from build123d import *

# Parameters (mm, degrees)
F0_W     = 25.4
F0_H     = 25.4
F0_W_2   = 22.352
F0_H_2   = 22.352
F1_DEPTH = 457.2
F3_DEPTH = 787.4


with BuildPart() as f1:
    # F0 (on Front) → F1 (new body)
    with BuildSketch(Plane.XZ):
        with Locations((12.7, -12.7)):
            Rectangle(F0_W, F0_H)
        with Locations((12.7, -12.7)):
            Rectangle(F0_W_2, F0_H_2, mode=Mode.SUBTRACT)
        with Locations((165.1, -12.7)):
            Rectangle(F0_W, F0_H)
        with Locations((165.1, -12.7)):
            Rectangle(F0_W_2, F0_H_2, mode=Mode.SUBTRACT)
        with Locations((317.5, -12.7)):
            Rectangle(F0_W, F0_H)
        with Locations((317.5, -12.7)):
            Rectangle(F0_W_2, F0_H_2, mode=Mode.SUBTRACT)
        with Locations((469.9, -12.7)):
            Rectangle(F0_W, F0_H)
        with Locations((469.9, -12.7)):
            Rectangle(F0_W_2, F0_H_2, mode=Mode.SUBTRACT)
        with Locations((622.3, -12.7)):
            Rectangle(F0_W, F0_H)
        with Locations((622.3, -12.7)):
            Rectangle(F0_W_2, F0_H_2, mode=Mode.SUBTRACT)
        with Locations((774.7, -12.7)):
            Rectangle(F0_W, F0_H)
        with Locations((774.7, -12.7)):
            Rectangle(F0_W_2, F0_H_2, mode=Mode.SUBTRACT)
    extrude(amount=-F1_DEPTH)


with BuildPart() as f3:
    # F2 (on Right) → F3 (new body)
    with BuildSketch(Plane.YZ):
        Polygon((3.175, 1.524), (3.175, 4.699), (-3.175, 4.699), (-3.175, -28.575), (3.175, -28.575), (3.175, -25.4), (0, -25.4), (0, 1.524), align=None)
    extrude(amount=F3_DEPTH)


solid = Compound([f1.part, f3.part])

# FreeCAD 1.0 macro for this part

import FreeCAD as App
import Part
import Sketcher
Q = App.Units.Quantity

doc = App.newDocument("Part")
params = doc.addObject("Spreadsheet::Sheet", "Params")
for row, (alias, value) in enumerate([
    ("sketch1_width", "1 in"),
    ("sketch1_width2", "0.88 in"),
    ("pad1_length", "18 in"),
    ("sketch2_width", "0.25 in"),
    ("sketch2_height", "1.31 in"),
    ("sketch2_height2", "1.06 in"),
    ("pad2_length", "31 in"),
], start=1):
    params.set(f"A{row}", alias)
    params.set(f"B{row}", "=" + value)
    params.setAlias(f"B{row}", alias)

body = doc.addObject("PartDesign::Body", "Body")
body.AllowCompound = True

# Sketch on XZ plane
sketch1 = body.newObject("Sketcher::SketchObject", "Sketch")
sketch1.AttachmentSupport = (doc.getObject("XZ_Plane"), [""])
sketch1.MapMode = "FlatFace"
sketch1.addGeometry([
    Part.LineSegment(App.Vector(0, 0, 0), App.Vector(0, -25, 0)),  # 0
    Part.LineSegment(App.Vector(0, -25, 0), App.Vector(25, -25, 0)),  # 1
    Part.LineSegment(App.Vector(25, -25, 0), App.Vector(25, 0, 0)),  # 2
    Part.LineSegment(App.Vector(25, 0, 0), App.Vector(0, 0, 0)),  # 3
    Part.LineSegment(App.Vector(24, -24, 0), App.Vector(2, -24, 0)),  # 4
    Part.LineSegment(App.Vector(2, -24, 0), App.Vector(2, -2, 0)),  # 5
    Part.LineSegment(App.Vector(2, -2, 0), App.Vector(24, -2, 0)),  # 6
    Part.LineSegment(App.Vector(24, -2, 0), App.Vector(24, -24, 0)),  # 7
    Part.LineSegment(App.Vector(152, 0, 0), App.Vector(152, -25, 0)),  # 8
    Part.LineSegment(App.Vector(152, -25, 0), App.Vector(178, -25, 0)),  # 9
    Part.LineSegment(App.Vector(178, -25, 0), App.Vector(178, 0, 0)),  # 10
    Part.LineSegment(App.Vector(178, 0, 0), App.Vector(152, 0, 0)),  # 11
    Part.LineSegment(App.Vector(176, -24, 0), App.Vector(154, -24, 0)),  # 12
    Part.LineSegment(App.Vector(154, -24, 0), App.Vector(154, -2, 0)),  # 13
    Part.LineSegment(App.Vector(154, -2, 0), App.Vector(176, -2, 0)),  # 14
    Part.LineSegment(App.Vector(176, -2, 0), App.Vector(176, -24, 0)),  # 15
    Part.LineSegment(App.Vector(305, 0, 0), App.Vector(305, -25, 0)),  # 16
    Part.LineSegment(App.Vector(305, -25, 0), App.Vector(330, -25, 0)),  # 17
    Part.LineSegment(App.Vector(330, -25, 0), App.Vector(330, 0, 0)),  # 18
    Part.LineSegment(App.Vector(330, 0, 0), App.Vector(305, 0, 0)),  # 19
    Part.LineSegment(App.Vector(329, -24, 0), App.Vector(306, -24, 0)),  # 20
    Part.LineSegment(App.Vector(306, -24, 0), App.Vector(306, -2, 0)),  # 21
    Part.LineSegment(App.Vector(306, -2, 0), App.Vector(329, -2, 0)),  # 22
    Part.LineSegment(App.Vector(329, -2, 0), App.Vector(329, -24, 0)),  # 23
    Part.LineSegment(App.Vector(457, 0, 0), App.Vector(457, -25, 0)),  # 24
    Part.LineSegment(App.Vector(457, -25, 0), App.Vector(483, -25, 0)),  # 25
    Part.LineSegment(App.Vector(483, -25, 0), App.Vector(483, 0, 0)),  # 26
    Part.LineSegment(App.Vector(483, 0, 0), App.Vector(457, 0, 0)),  # 27
    Part.LineSegment(App.Vector(481, -24, 0), App.Vector(459, -24, 0)),  # 28
    Part.LineSegment(App.Vector(459, -24, 0), App.Vector(459, -2, 0)),  # 29
    Part.LineSegment(App.Vector(459, -2, 0), App.Vector(481, -2, 0)),  # 30
    Part.LineSegment(App.Vector(481, -2, 0), App.Vector(481, -24, 0)),  # 31
    Part.LineSegment(App.Vector(610, 0, 0), App.Vector(610, -25, 0)),  # 32
    Part.LineSegment(App.Vector(610, -25, 0), App.Vector(635, -25, 0)),  # 33
    Part.LineSegment(App.Vector(635, -25, 0), App.Vector(635, 0, 0)),  # 34
    Part.LineSegment(App.Vector(635, 0, 0), App.Vector(610, 0, 0)),  # 35
    Part.LineSegment(App.Vector(633, -24, 0), App.Vector(611, -24, 0)),  # 36
    Part.LineSegment(App.Vector(611, -24, 0), App.Vector(611, -2, 0)),  # 37
    Part.LineSegment(App.Vector(611, -2, 0), App.Vector(633, -2, 0)),  # 38
    Part.LineSegment(App.Vector(633, -2, 0), App.Vector(633, -24, 0)),  # 39
    Part.LineSegment(App.Vector(762, 0, 0), App.Vector(762, -25, 0)),  # 40
    Part.LineSegment(App.Vector(762, -25, 0), App.Vector(787, -25, 0)),  # 41
    Part.LineSegment(App.Vector(787, -25, 0), App.Vector(787, 0, 0)),  # 42
    Part.LineSegment(App.Vector(787, 0, 0), App.Vector(762, 0, 0)),  # 43
    Part.LineSegment(App.Vector(786, -24, 0), App.Vector(764, -24, 0)),  # 44
    Part.LineSegment(App.Vector(764, -24, 0), App.Vector(764, -2, 0)),  # 45
    Part.LineSegment(App.Vector(764, -2, 0), App.Vector(786, -2, 0)),  # 46
    Part.LineSegment(App.Vector(786, -2, 0), App.Vector(786, -24, 0)),  # 47
], False)
sketch1.addConstraint([
    Sketcher.Constraint("Coincident", 0, 2, 1, 1),
    Sketcher.Constraint("Coincident", 1, 2, 2, 1),
    Sketcher.Constraint("Coincident", 2, 2, 3, 1),
    Sketcher.Constraint("Coincident", 3, 2, 0, 1),
    Sketcher.Constraint("Coincident", 4, 2, 5, 1),
    Sketcher.Constraint("Coincident", 5, 2, 6, 1),
    Sketcher.Constraint("Coincident", 6, 2, 7, 1),
    Sketcher.Constraint("Coincident", 7, 2, 4, 1),
    Sketcher.Constraint("Coincident", 8, 2, 9, 1),
    Sketcher.Constraint("Coincident", 9, 2, 10, 1),
    Sketcher.Constraint("Coincident", 10, 2, 11, 1),
    Sketcher.Constraint("Coincident", 11, 2, 8, 1),
    Sketcher.Constraint("Coincident", 12, 2, 13, 1),
    Sketcher.Constraint("Coincident", 13, 2, 14, 1),
    Sketcher.Constraint("Coincident", 14, 2, 15, 1),
    Sketcher.Constraint("Coincident", 15, 2, 12, 1),
    Sketcher.Constraint("Coincident", 16, 2, 17, 1),
    Sketcher.Constraint("Coincident", 17, 2, 18, 1),
    Sketcher.Constraint("Coincident", 18, 2, 19, 1),
    Sketcher.Constraint("Coincident", 19, 2, 16, 1),
    Sketcher.Constraint("Coincident", 20, 2, 21, 1),
    Sketcher.Constraint("Coincident", 21, 2, 22, 1),
    Sketcher.Constraint("Coincident", 22, 2, 23, 1),
    Sketcher.Constraint("Coincident", 23, 2, 20, 1),
    Sketcher.Constraint("Coincident", 24, 2, 25, 1),
    Sketcher.Constraint("Coincident", 25, 2, 26, 1),
    Sketcher.Constraint("Coincident", 26, 2, 27, 1),
    Sketcher.Constraint("Coincident", 27, 2, 24, 1),
    Sketcher.Constraint("Coincident", 28, 2, 29, 1),
    Sketcher.Constraint("Coincident", 29, 2, 30, 1),
    Sketcher.Constraint("Coincident", 30, 2, 31, 1),
    Sketcher.Constraint("Coincident", 31, 2, 28, 1),
    Sketcher.Constraint("Coincident", 32, 2, 33, 1),
    Sketcher.Constraint("Coincident", 33, 2, 34, 1),
    Sketcher.Constraint("Coincident", 34, 2, 35, 1),
    Sketcher.Constraint("Coincident", 35, 2, 32, 1),
    Sketcher.Constraint("Coincident", 36, 2, 37, 1),
    Sketcher.Constraint("Coincident", 37, 2, 38, 1),
    Sketcher.Constraint("Coincident", 38, 2, 39, 1),
    Sketcher.Constraint("Coincident", 39, 2, 36, 1),
    Sketcher.Constraint("Coincident", 40, 2, 41, 1),
    Sketcher.Constraint("Coincident", 41, 2, 42, 1),
    Sketcher.Constraint("Coincident", 42, 2, 43, 1),
    Sketcher.Constraint("Coincident", 43, 2, 40, 1),
    Sketcher.Constraint("Coincident", 44, 2, 45, 1),
    Sketcher.Constraint("Coincident", 45, 2, 46, 1),
    Sketcher.Constraint("Coincident", 46, 2, 47, 1),
    Sketcher.Constraint("Coincident", 47, 2, 44, 1),
    Sketcher.Constraint("Vertical", 0),
    Sketcher.Constraint("Horizontal", 1),
    Sketcher.Constraint("Vertical", 2),
    Sketcher.Constraint("Horizontal", 3),
    Sketcher.Constraint("Horizontal", 4),
    Sketcher.Constraint("Vertical", 5),
    Sketcher.Constraint("Horizontal", 6),
    Sketcher.Constraint("Vertical", 7),
    Sketcher.Constraint("Vertical", 8),
    Sketcher.Constraint("Horizontal", 9),
    Sketcher.Constraint("Vertical", 10),
    Sketcher.Constraint("Horizontal", 11),
    Sketcher.Constraint("Horizontal", 12),
    Sketcher.Constraint("Vertical", 13),
    Sketcher.Constraint("Horizontal", 14),
    Sketcher.Constraint("Vertical", 15),
    Sketcher.Constraint("Vertical", 16),
    Sketcher.Constraint("Horizontal", 17),
    Sketcher.Constraint("Vertical", 18),
    Sketcher.Constraint("Horizontal", 19),
    Sketcher.Constraint("Horizontal", 20),
    Sketcher.Constraint("Vertical", 21),
    Sketcher.Constraint("Horizontal", 22),
    Sketcher.Constraint("Vertical", 23),
    Sketcher.Constraint("Vertical", 24),
    Sketcher.Constraint("Horizontal", 25),
    Sketcher.Constraint("Vertical", 26),
    Sketcher.Constraint("Horizontal", 27),
    Sketcher.Constraint("Horizontal", 28),
    Sketcher.Constraint("Vertical", 29),
    Sketcher.Constraint("Horizontal", 30),
    Sketcher.Constraint("Vertical", 31),
    Sketcher.Constraint("Vertical", 32),
    Sketcher.Constraint("Horizontal", 33),
    Sketcher.Constraint("Vertical", 34),
    Sketcher.Constraint("Horizontal", 35),
    Sketcher.Constraint("Horizontal", 36),
    Sketcher.Constraint("Vertical", 37),
    Sketcher.Constraint("Horizontal", 38),
    Sketcher.Constraint("Vertical", 39),
    Sketcher.Constraint("Vertical", 40),
    Sketcher.Constraint("Horizontal", 41),
    Sketcher.Constraint("Vertical", 42),
    Sketcher.Constraint("Horizontal", 43),
    Sketcher.Constraint("Horizontal", 44),
    Sketcher.Constraint("Vertical", 45),
    Sketcher.Constraint("Horizontal", 46),
    Sketcher.Constraint("Vertical", 47),
    Sketcher.Constraint("Coincident", 3, 2, -1, 1),
    Sketcher.Constraint("PointOnObject", 10, 2, -1),
    Sketcher.Constraint("PointOnObject", 18, 2, -1),
    Sketcher.Constraint("PointOnObject", 26, 2, -1),
    Sketcher.Constraint("PointOnObject", 34, 2, -1),
    Sketcher.Constraint("PointOnObject", 42, 2, -1),
    Sketcher.Constraint("Horizontal", 1, 2, 8, 2),
    Sketcher.Constraint("Horizontal", 7, 2, 12, 2),
    Sketcher.Constraint("Horizontal", 6, 2, 13, 2),
    Sketcher.Constraint("Horizontal", 9, 2, 16, 2),
    Sketcher.Constraint("Horizontal", 15, 2, 20, 2),
    Sketcher.Constraint("Horizontal", 14, 2, 21, 2),
    Sketcher.Constraint("Horizontal", 17, 2, 24, 2),
    Sketcher.Constraint("Horizontal", 23, 2, 28, 2),
    Sketcher.Constraint("Horizontal", 22, 2, 29, 2),
    Sketcher.Constraint("Horizontal", 25, 2, 32, 2),
    Sketcher.Constraint("Horizontal", 31, 2, 36, 2),
    Sketcher.Constraint("Horizontal", 30, 2, 37, 2),
    Sketcher.Constraint("Horizontal", 33, 2, 40, 2),
    Sketcher.Constraint("Horizontal", 39, 2, 44, 2),
    Sketcher.Constraint("Horizontal", 38, 2, 45, 2),
    Sketcher.Constraint("Equal", 3, 9),
    Sketcher.Constraint("Equal", 6, 12),
    Sketcher.Constraint("Equal", 11, 17),
    Sketcher.Constraint("Equal", 14, 20),
    Sketcher.Constraint("Equal", 19, 25),
    Sketcher.Constraint("Equal", 22, 28),
    Sketcher.Constraint("Equal", 27, 33),
    Sketcher.Constraint("Equal", 30, 36),
    Sketcher.Constraint("Equal", 35, 41),
    Sketcher.Constraint("Equal", 38, 44),
    Sketcher.Constraint("Equal", 43, 0),
    Sketcher.Constraint("Equal", 46, 5),
    Sketcher.Constraint("DistanceX", 1, 1, 1, 2, Q("1 in")),
    Sketcher.Constraint("DistanceX", -1, 1, 8, 2, Q("6 in")),
    Sketcher.Constraint("DistanceX", -1, 1, 16, 2, Q("12 in")),
    Sketcher.Constraint("DistanceX", -1, 1, 24, 2, Q("18 in")),
    Sketcher.Constraint("DistanceX", -1, 1, 32, 2, Q("24 in")),
    Sketcher.Constraint("DistanceX", -1, 1, 40, 2, Q("30 in")),
    Sketcher.Constraint("DistanceX", 4, 2, 4, 1, Q("0.88 in")),
    Sketcher.Constraint("DistanceX", -1, 1, 4, 2, Q("0.06 in")),
    Sketcher.Constraint("DistanceY", 4, 2, -1, 1, Q("0.94 in")),
    Sketcher.Constraint("DistanceX", -1, 1, 12, 2, Q("6.06 in")),
    Sketcher.Constraint("DistanceX", -1, 1, 20, 2, Q("12.06 in")),
    Sketcher.Constraint("DistanceX", -1, 1, 28, 2, Q("18.06 in")),
    Sketcher.Constraint("DistanceX", -1, 1, 36, 2, Q("24.06 in")),
    Sketcher.Constraint("DistanceX", -1, 1, 44, 2, Q("30.06 in")),
])
sketch1.setExpression("Constraints[129]", "Params.sketch1_width")
sketch1.setExpression("Constraints[135]", "Params.sketch1_width2")
pad1 = body.newObject("PartDesign::Pad", "Pad")
pad1.Profile = sketch1
pad1.setExpression("Length", "Params.pad1_length")
pad1.Reversed = True
body2 = doc.addObject("PartDesign::Body", "Body001")

# Sketch on YZ plane
sketch2 = body2.newObject("Sketcher::SketchObject", "Sketch001")
sketch2.AttachmentSupport = (doc.getObject("YZ_Plane001"), [""])
sketch2.MapMode = "FlatFace"
sketch2.addGeometry([
    Part.LineSegment(App.Vector(3.2, 1.5, 0), App.Vector(3.2, 4.7, 0)),  # 0
    Part.LineSegment(App.Vector(3.2, 4.7, 0), App.Vector(-3.2, 4.7, 0)),  # 1
    Part.LineSegment(App.Vector(-3.2, 4.7, 0), App.Vector(-3.2, -28.6, 0)),  # 2
    Part.LineSegment(App.Vector(-3.2, -28.6, 0), App.Vector(3.2, -28.6, 0)),  # 3
    Part.LineSegment(App.Vector(3.2, -28.6, 0), App.Vector(3.2, -25.4, 0)),  # 4
    Part.LineSegment(App.Vector(3.2, -25.4, 0), App.Vector(0, -25.4, 0)),  # 5
    Part.LineSegment(App.Vector(0, -25.4, 0), App.Vector(0, 1.5, 0)),  # 6
    Part.LineSegment(App.Vector(0, 1.5, 0), App.Vector(3.2, 1.5, 0)),  # 7
], False)
sketch2.addConstraint([
    Sketcher.Constraint("Coincident", 0, 2, 1, 1),
    Sketcher.Constraint("Coincident", 1, 2, 2, 1),
    Sketcher.Constraint("Coincident", 2, 2, 3, 1),
    Sketcher.Constraint("Coincident", 3, 2, 4, 1),
    Sketcher.Constraint("Coincident", 4, 2, 5, 1),
    Sketcher.Constraint("Coincident", 5, 2, 6, 1),
    Sketcher.Constraint("Coincident", 6, 2, 7, 1),
    Sketcher.Constraint("Coincident", 7, 2, 0, 1),
    Sketcher.Constraint("Vertical", 0),
    Sketcher.Constraint("Horizontal", 1),
    Sketcher.Constraint("Vertical", 2),
    Sketcher.Constraint("Horizontal", 3),
    Sketcher.Constraint("Vertical", 4),
    Sketcher.Constraint("Horizontal", 5),
    Sketcher.Constraint("Vertical", 6),
    Sketcher.Constraint("Horizontal", 7),
    Sketcher.Constraint("PointOnObject", 5, 2, -2),
    Sketcher.Constraint("Vertical", 0, 2, 3, 2),
    Sketcher.Constraint("Equal", 7, 0),
    Sketcher.Constraint("Equal", 0, 4),
    Sketcher.Constraint("DistanceY", 4, 2, -1, 1, Q("1 in")),
    Sketcher.Constraint("DistanceX", 1, 2, 1, 1, Q("0.25 in")),
    Sketcher.Constraint("DistanceY", 2, 2, 2, 1, Q("1.31 in")),
    Sketcher.Constraint("DistanceY", 6, 1, 6, 2, Q("1.06 in")),
])
sketch2.setExpression("Constraints[21]", "Params.sketch2_width")
sketch2.setExpression("Constraints[22]", "Params.sketch2_height")
sketch2.setExpression("Constraints[23]", "Params.sketch2_height2")
pad2 = body2.newObject("PartDesign::Pad", "Pad001")
pad2.Profile = sketch2
pad2.setExpression("Length", "Params.pad2_length")

doc.recompute()
